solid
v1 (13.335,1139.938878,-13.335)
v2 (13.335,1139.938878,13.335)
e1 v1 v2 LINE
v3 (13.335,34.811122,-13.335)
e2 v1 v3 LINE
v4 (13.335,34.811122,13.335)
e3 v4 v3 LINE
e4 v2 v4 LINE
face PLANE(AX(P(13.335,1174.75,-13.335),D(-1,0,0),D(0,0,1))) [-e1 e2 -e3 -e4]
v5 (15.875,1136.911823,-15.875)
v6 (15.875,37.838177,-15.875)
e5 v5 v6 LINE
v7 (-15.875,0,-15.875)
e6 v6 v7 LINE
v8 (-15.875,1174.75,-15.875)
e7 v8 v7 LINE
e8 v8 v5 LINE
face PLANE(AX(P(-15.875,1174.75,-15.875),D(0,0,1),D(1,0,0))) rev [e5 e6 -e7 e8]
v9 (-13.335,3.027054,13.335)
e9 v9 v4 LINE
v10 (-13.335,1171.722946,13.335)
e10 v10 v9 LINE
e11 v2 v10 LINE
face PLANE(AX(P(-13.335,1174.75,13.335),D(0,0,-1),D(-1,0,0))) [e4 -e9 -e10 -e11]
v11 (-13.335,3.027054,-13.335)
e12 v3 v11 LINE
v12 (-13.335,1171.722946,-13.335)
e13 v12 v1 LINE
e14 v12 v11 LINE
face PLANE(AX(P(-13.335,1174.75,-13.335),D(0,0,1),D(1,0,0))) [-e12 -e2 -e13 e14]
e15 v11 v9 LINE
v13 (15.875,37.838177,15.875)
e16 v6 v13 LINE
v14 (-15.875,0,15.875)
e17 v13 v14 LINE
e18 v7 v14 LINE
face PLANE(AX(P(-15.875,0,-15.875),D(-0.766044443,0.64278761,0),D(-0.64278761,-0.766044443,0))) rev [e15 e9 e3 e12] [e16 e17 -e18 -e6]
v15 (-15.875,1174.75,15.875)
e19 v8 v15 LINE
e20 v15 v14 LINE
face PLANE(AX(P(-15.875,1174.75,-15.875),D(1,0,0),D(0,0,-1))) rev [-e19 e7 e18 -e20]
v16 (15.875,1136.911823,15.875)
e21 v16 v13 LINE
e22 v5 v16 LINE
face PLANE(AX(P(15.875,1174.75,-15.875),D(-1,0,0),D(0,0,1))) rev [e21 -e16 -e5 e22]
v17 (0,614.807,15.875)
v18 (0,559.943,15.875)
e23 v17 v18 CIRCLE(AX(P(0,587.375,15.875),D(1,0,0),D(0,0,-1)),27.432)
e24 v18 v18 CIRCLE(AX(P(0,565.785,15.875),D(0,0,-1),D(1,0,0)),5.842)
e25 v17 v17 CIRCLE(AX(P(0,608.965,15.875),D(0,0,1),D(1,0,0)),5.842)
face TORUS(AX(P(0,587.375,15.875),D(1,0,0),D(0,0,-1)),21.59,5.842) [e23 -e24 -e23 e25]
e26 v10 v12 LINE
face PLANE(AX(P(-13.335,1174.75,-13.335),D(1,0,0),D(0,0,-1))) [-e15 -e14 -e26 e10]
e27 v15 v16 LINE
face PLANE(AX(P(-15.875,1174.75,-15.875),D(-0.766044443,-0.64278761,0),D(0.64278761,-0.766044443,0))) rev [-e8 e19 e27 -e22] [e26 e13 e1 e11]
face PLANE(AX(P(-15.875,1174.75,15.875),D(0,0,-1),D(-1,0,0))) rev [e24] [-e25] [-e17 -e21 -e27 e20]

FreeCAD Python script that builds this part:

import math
import FreeCAD as App
import Part
import Sketcher
Q = App.Units.Quantity


def add_polygon(sketch, points):
    """Adds a closed chain of lines whose ends are joined by coincident constraints."""
    first, n = sketch.GeometryCount, len(points)
    for a, b in zip(points, points[1:] + points[:1]):
        sketch.addGeometry(Part.LineSegment(App.Vector(*a, 0), App.Vector(*b, 0)), False)
    for i in range(n):
        sketch.addConstraint(Sketcher.Constraint("Coincident", first + i, 2, first + (i + 1) % n, 1))

doc = App.newDocument("Part")
body = doc.addObject("PartDesign::Body", "Body")

# Sketch on XZ plane
sketch1 = doc.addObject("Sketcher::SketchObject", "Sketch")
body.addObject(sketch1)
sketch1.AttachmentSupport = (doc.XZ_Plane, [""])
sketch1.MapMode = "FlatFace"
add_polygon(sketch1, [(-16, -16), (-16, 16), (16, 16), (16, -16)])  # lines 0-3
add_polygon(sketch1, [(13, 13), (-13, 13), (-13, -13), (13, -13)])  # lines 4-7
sketch1.addConstraint([
    Sketcher.Constraint("Vertical", 0),
    Sketcher.Constraint("Horizontal", 1),
    Sketcher.Constraint("Vertical", 2),
    Sketcher.Constraint("Horizontal", 3),
    Sketcher.Constraint("Horizontal", 4),
    Sketcher.Constraint("Vertical", 5),
    Sketcher.Constraint("Horizontal", 6),
    Sketcher.Constraint("Vertical", 7),
    Sketcher.Constraint("Symmetric", 0, 2, 2, 2, -1, 1),
    Sketcher.Constraint("Symmetric", 4, 2, 6, 2, -1, 1),
    Sketcher.Constraint("Equal", 3, 0),
    Sketcher.Constraint("Equal", 6, 5),
    Sketcher.Constraint("DistanceX", 1, 1, 1, 2, Q("1.25 in")),
    Sketcher.Constraint("DistanceX", 4, 2, 4, 1, Q("1.05 in")),
])
pad1 = doc.addObject("PartDesign::Pad", "Pad")
body.addObject(pad1)
pad1.Profile = sketch1
pad1.Length = Q("46.25 in")
pad1.Reversed = True

# Sketch on XY plane
sketch2 = doc.addObject("Sketcher::SketchObject", "Sketch001")
body.addObject(sketch2)
sketch2.AttachmentSupport = (doc.XY_Plane, [""])
sketch2.MapMode = "FlatFace"
sketch2.AttachmentOffset = App.Placement(App.Vector(0, 0, 0.625 * 25.4), App.Rotation())
add_polygon(sketch2, [(16, 0), (16, 38), (-16, 0)])  # lines 0-2
add_polygon(sketch2, [(16, 1137), (16, 1175), (-16, 1175)])  # lines 3-5
sketch2.addConstraint([
    Sketcher.Constraint("Vertical", 0),
    Sketcher.Constraint("Horizontal", 2),
    Sketcher.Constraint("Vertical", 3),
    Sketcher.Constraint("Horizontal", 4),
    Sketcher.Constraint("Symmetric", 1, 2, 2, 2, -1, 1),
    Sketcher.Constraint("Vertical", 2, 2, 3, 2),
    Sketcher.Constraint("Vertical", 1, 2, 4, 2),
    Sketcher.Constraint("Equal", 0, 3),
    Sketcher.Constraint("Angle", 1, Q("-130 deg")),
    Sketcher.Constraint("DistanceX", 2, 1, 2, 2, Q("1.25 in")),
    Sketcher.Constraint("DistanceY", -1, 1, 3, 2, Q("46.25 in")),
])
pocket1 = doc.addObject("PartDesign::Pocket", "Pocket")
body.addObject(pocket1)
pocket1.Profile = sketch2
pocket1.Type = "ThroughAll"

# Sketch on XY plane
sketch3 = doc.addObject("Sketcher::SketchObject", "Sketch002")
body.addObject(sketch3)
sketch3.AttachmentSupport = (doc.XY_Plane, [""])
sketch3.MapMode = "FlatFace"
sketch3.AttachmentOffset = App.Placement(App.Vector(0, 0, 0.625 * 25.4), App.Rotation())
sketch3.addGeometry(Part.Circle(App.Vector(0, 609, 0), App.Vector(0, 0, 1), 6), False)
sketch3.addConstraint([
    Sketcher.Constraint("PointOnObject", 0, 3, -2),
    Sketcher.Constraint("Diameter", 0, Q("0.46 in")),
    Sketcher.Constraint("DistanceY", -1, 1, 0, 3, Q("23.975 in")),
])

# Sketch on YZ plane
sketch4 = doc.addObject("Sketcher::SketchObject", "Sketch003")
body.addObject(sketch4)
sketch4.AttachmentSupport = (doc.YZ_Plane, [""])
sketch4.MapMode = "FlatFace"
sketch4.addGeometry(Part.ArcOfCircle(Part.Circle(App.Vector(587, 16, 0), App.Vector(0, 0, 1), 22), math.radians(0), math.radians(180)), False)
sketch4.addConstraint([
    Sketcher.Constraint("Radius", 0, Q("0.85 in")),
    Sketcher.Constraint("DistanceX", -1, 1, 0, 3, Q("23.125 in")),
    Sketcher.Constraint("DistanceY", -1, 1, 0, 3, Q("0.625 in")),
    Sketcher.Constraint("DistanceY", -1, 1, 0, 1, Q("0.625 in")),
    Sketcher.Constraint("DistanceY", -1, 1, 0, 2, Q("0.625 in")),
])
doc.recompute()

additivepipe = doc.addObject("PartDesign::AdditivePipe", "AdditivePipe")
body.addObject(additivepipe)
additivepipe.Profile = sketch3
additivepipe.Spine = (sketch4, ["Edge1"])

doc.recompute()
